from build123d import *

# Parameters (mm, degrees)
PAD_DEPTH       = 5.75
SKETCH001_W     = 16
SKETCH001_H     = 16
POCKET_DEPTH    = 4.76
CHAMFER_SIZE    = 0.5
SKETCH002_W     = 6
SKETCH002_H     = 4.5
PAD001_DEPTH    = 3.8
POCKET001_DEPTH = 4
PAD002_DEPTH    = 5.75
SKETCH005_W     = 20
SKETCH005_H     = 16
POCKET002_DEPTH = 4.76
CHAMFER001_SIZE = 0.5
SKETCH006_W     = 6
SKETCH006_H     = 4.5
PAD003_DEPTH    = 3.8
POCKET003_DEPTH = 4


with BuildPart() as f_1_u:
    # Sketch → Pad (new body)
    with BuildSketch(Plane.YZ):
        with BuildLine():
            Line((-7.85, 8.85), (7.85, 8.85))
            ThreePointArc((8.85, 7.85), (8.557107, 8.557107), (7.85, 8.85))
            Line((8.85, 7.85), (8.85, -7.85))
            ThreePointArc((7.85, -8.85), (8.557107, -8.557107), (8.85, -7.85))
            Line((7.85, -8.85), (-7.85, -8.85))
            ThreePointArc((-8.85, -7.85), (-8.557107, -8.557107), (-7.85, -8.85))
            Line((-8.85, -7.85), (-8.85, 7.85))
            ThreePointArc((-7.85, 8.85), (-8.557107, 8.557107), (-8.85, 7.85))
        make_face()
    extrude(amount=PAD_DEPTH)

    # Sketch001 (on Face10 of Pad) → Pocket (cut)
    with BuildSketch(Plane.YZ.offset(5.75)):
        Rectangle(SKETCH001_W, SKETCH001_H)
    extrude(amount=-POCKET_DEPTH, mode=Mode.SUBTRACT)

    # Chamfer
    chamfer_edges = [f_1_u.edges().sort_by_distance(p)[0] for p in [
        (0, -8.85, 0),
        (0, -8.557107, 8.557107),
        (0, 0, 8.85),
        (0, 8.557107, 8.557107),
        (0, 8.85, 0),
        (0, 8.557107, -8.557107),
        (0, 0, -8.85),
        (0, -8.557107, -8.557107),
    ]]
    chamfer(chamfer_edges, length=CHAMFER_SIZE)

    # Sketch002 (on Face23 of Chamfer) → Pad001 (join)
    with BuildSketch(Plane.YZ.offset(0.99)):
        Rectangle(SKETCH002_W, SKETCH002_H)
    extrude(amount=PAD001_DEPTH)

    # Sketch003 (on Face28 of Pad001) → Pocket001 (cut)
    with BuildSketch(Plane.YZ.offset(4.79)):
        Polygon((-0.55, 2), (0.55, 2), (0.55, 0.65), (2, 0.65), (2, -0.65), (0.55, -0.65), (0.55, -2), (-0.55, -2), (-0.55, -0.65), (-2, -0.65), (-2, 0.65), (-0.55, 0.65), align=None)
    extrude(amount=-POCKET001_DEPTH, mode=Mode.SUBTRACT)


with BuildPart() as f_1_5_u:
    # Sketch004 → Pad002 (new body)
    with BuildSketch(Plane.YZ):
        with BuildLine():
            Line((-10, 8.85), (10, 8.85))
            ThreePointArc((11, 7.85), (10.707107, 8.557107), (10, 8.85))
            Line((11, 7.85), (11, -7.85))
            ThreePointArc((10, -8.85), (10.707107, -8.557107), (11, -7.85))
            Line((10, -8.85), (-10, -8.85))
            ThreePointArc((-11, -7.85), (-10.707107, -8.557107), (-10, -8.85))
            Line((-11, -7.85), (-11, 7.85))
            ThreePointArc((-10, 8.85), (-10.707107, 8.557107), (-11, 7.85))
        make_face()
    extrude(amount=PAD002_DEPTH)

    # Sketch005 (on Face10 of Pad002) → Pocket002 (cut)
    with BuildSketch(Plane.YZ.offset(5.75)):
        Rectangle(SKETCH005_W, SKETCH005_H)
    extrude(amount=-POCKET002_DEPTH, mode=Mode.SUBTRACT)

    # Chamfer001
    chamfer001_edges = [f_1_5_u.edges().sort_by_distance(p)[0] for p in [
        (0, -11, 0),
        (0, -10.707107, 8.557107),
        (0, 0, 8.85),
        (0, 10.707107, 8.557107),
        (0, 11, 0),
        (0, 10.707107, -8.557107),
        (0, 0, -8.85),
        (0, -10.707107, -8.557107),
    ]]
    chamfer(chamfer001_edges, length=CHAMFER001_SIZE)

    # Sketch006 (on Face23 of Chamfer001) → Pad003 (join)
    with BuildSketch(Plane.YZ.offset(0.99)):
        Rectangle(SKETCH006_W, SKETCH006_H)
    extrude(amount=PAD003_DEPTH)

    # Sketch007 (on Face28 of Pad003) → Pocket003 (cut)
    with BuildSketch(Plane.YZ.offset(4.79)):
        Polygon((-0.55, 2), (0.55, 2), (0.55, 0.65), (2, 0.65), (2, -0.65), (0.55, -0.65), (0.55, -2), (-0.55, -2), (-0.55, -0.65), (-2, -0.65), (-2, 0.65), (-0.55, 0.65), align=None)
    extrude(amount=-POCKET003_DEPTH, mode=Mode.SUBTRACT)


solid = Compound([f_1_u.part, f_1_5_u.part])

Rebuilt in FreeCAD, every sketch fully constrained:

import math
import FreeCAD as App
import Part
import Sketcher
from FreeCAD import Vector


def edges_at(feature, points):
    """Names of the edges that pass closest to the given points."""
    edges = feature.Shape.Edges
    near = lambda p: min(range(len(edges)), key=lambda i: edges[i].distToShape(Part.Vertex(*p))[0])
    return sorted({f"Edge{near(p) + 1}" for p in points})


def add_polygon(sketch, points):
    """Adds a closed chain of lines whose ends are joined by coincident constraints."""
    first, n = sketch.GeometryCount, len(points)
    for a, b in zip(points, points[1:] + points[:1]):
        sketch.addGeometry(Part.LineSegment(App.Vector(*a, 0), App.Vector(*b, 0)), False)
    for i in range(n):
        sketch.addConstraint(Sketcher.Constraint("Coincident", first + i, 2, first + (i + 1) % n, 1))

doc = App.newDocument("Part")
body = doc.addObject("PartDesign::Body", "Body")

sketch1 = body.newObject("Sketcher::SketchObject", "Sketch")
sketch1.AttachmentSupport = (doc.getObject("YZ_Plane"), [""])
sketch1.MapMode = "FlatFace"
sketch1.addGeometry(Part.LineSegment(Vector(7.85, 8.85, 0), Vector(-7.85, 8.85, 0)), False)
sketch1.addGeometry(Part.ArcOfCircle(Part.Circle(Vector(-7.850001, 7.850001, 0), Vector(0, 0, 1), 0.999999), math.radians(89.999957), math.radians(180.000043)), False)
sketch1.addGeometry(Part.LineSegment(Vector(-8.85, 7.85, 0), Vector(-8.85, -7.85, 0)), False)
sketch1.addGeometry(Part.ArcOfCircle(Part.Circle(Vector(-7.850001, -7.850001, 0), Vector(0, 0, 1), 0.999999), math.radians(179.999957), math.radians(270.000043)), False)
sketch1.addGeometry(Part.LineSegment(Vector(-7.85, -8.85, 0), Vector(7.85, -8.85, 0)), False)
sketch1.addGeometry(Part.ArcOfCircle(Part.Circle(Vector(7.850001, -7.850001, 0), Vector(0, 0, 1), 0.999999), math.radians(-90.000043), math.radians(0.000043)), False)
sketch1.addGeometry(Part.LineSegment(Vector(8.85, -7.85, 0), Vector(8.85, 7.85, 0)), False)
sketch1.addGeometry(Part.ArcOfCircle(Part.Circle(Vector(7.850001, 7.850001, 0), Vector(0, 0, 1), 0.999999), math.radians(-0.000043), math.radians(90.000043)), False)
sketch1.addConstraint(Sketcher.Constraint("Tangent", 0, 2, 1, 1))
sketch1.addConstraint(Sketcher.Constraint("Tangent", 1, 2, 2, 1))
sketch1.addConstraint(Sketcher.Constraint("Tangent", 2, 2, 3, 1))
sketch1.addConstraint(Sketcher.Constraint("Tangent", 3, 2, 4, 1))
sketch1.addConstraint(Sketcher.Constraint("Tangent", 4, 2, 5, 1))
sketch1.addConstraint(Sketcher.Constraint("Tangent", 5, 2, 6, 1))
sketch1.addConstraint(Sketcher.Constraint("Tangent", 6, 2, 7, 1))
sketch1.addConstraint(Sketcher.Constraint("Tangent", 7, 2, 0, 1))
sketch1.addConstraint(Sketcher.Constraint("Horizontal", 0))
sketch1.addConstraint(Sketcher.Constraint("Vertical", 2))
sketch1.addConstraint(Sketcher.Constraint("Horizontal", 4))
sketch1.addConstraint(Sketcher.Constraint("Vertical", 6))
sketch1.addConstraint(Sketcher.Constraint("Equal", 1, 3))
sketch1.addConstraint(Sketcher.Constraint("Equal", 3, 5))
sketch1.addConstraint(Sketcher.Constraint("Equal", 5, 7))
sketch1.addConstraint(Sketcher.Constraint("Symmetric", 1, 3, 5, 3, -1, 1))
sketch1.addConstraint(Sketcher.Constraint("Equal", 4, 2))
sketch1.addConstraint(Sketcher.Constraint("Radius", 1, 0.999999))
sketch1.addConstraint(Sketcher.Constraint("DistanceX", 0, 2, 0, 1, 15.7))
pad1 = body.newObject("PartDesign::Pad", "Pad")
pad1.Profile = sketch1
pad1.Length = 5.75

sketch2 = body.newObject("Sketcher::SketchObject", "Sketch001")
sketch2.AttachmentSupport = (doc.getObject("YZ_Plane"), [""])
sketch2.MapMode = "FlatFace"
sketch2.AttachmentOffset = App.Placement(Vector(0, 0, 5.75), App.Rotation())
add_polygon(sketch2, [(-8, 8), (-8, -8), (8, -8), (8, 8)])
sketch2.addConstraint(Sketcher.Constraint("Vertical", 0))
sketch2.addConstraint(Sketcher.Constraint("Horizontal", 1))
sketch2.addConstraint(Sketcher.Constraint("Vertical", 2))
sketch2.addConstraint(Sketcher.Constraint("Horizontal", 3))
sketch2.addConstraint(Sketcher.Constraint("Symmetric", 0, 2, 2, 2, -1, 1))
sketch2.addConstraint(Sketcher.Constraint("Equal", 3, 0))
sketch2.addConstraint(Sketcher.Constraint("DistanceX", 1, 1, 1, 2, 16.0))
pocket1 = body.newObject("PartDesign::Pocket", "Pocket")
pocket1.Profile = sketch2
pocket1.Length = 4.76
doc.recompute()

chamfer = body.newObject("PartDesign::Chamfer", "Chamfer")
chamfer.Base = (pocket1, edges_at(pocket1, [
    (0, -8.85, 0),
    (0, -8.557, 8.557),
    (0, 0, 8.85),
    (0, 8.557, 8.557),
    (0, 8.85, 0),
    (0, 8.557, -8.557),
    (0, 0, -8.85),
    (0, -8.557, -8.557),
]))
chamfer.Size = 0.5

sketch3 = body.newObject("Sketcher::SketchObject", "Sketch002")
sketch3.AttachmentSupport = (doc.getObject("YZ_Plane"), [""])
sketch3.MapMode = "FlatFace"
sketch3.AttachmentOffset = App.Placement(Vector(0, 0, 0.99), App.Rotation())
add_polygon(sketch3, [(-3, 2.25), (-3, -2.25), (3, -2.25), (3, 2.25)])
sketch3.addConstraint(Sketcher.Constraint("Vertical", 0))
sketch3.addConstraint(Sketcher.Constraint("Horizontal", 1))
sketch3.addConstraint(Sketcher.Constraint("Vertical", 2))
sketch3.addConstraint(Sketcher.Constraint("Horizontal", 3))
sketch3.addConstraint(Sketcher.Constraint("Symmetric", 0, 2, 2, 2, -1, 1))
sketch3.addConstraint(Sketcher.Constraint("DistanceX", 1, 1, 1, 2, 6.0))
sketch3.addConstraint(Sketcher.Constraint("DistanceY", 0, 2, 0, 1, 4.5))
pad2 = body.newObject("PartDesign::Pad", "Pad001")
pad2.Profile = sketch3
pad2.Length = 3.8

sketch4 = body.newObject("Sketcher::SketchObject", "Sketch003")
sketch4.AttachmentSupport = (doc.getObject("YZ_Plane"), [""])
sketch4.MapMode = "FlatFace"
sketch4.AttachmentOffset = App.Placement(Vector(0, 0, 4.79), App.Rotation())
add_polygon(sketch4, [(0.55, 2), (-0.55, 2), (-0.55, 0.65), (-2, 0.65), (-2, -0.65), (-0.55, -0.65), (-0.55, -2), (0.55, -2), (0.55, -0.65), (2, -0.65), (2, 0.65), (0.55, 0.65)])
sketch4.addConstraint(Sketcher.Constraint("Horizontal", 0))
sketch4.addConstraint(Sketcher.Constraint("Vertical", 1))
sketch4.addConstraint(Sketcher.Constraint("Horizontal", 2))
sketch4.addConstraint(Sketcher.Constraint("Vertical", 3))
sketch4.addConstraint(Sketcher.Constraint("Horizontal", 4))
sketch4.addConstraint(Sketcher.Constraint("Vertical", 5))
sketch4.addConstraint(Sketcher.Constraint("Horizontal", 6))
sketch4.addConstraint(Sketcher.Constraint("Vertical", 7))
sketch4.addConstraint(Sketcher.Constraint("Horizontal", 8))
sketch4.addConstraint(Sketcher.Constraint("Vertical", 9))
sketch4.addConstraint(Sketcher.Constraint("Horizontal", 10))
sketch4.addConstraint(Sketcher.Constraint("Vertical", 11))
sketch4.addConstraint(Sketcher.Constraint("Symmetric", 0, 2, 6, 2, -1, 1))
sketch4.addConstraint(Sketcher.Constraint("Symmetric", 2, 2, 8, 2, -1, 1))
sketch4.addConstraint(Sketcher.Constraint("Symmetric", 4, 2, 10, 2, -1, 1))
sketch4.addConstraint(Sketcher.Constraint("Symmetric", 4, 2, 7, 2, -2))
sketch4.addConstraint(Sketcher.Constraint("DistanceX", 0, 2, 0, 1, 1.1))
sketch4.addConstraint(Sketcher.Constraint("DistanceY", 3, 2, 3, 1, 1.3))
sketch4.addConstraint(Sketcher.Constraint("DistanceY", -1, 1, 0, 2, 2.0))
sketch4.addConstraint(Sketcher.Constraint("DistanceX", 2, 2, -1, 1, 2.0))
pocket2 = body.newObject("PartDesign::Pocket", "Pocket001")
pocket2.Profile = sketch4
pocket2.Length = 4
body2 = doc.addObject("PartDesign::Body", "Body001")

sketch5 = body2.newObject("Sketcher::SketchObject", "Sketch004")
sketch5.AttachmentSupport = (doc.getObject("YZ_Plane001"), [""])
sketch5.MapMode = "FlatFace"
sketch5.addGeometry(Part.LineSegment(Vector(10, 8.85, 0), Vector(-10, 8.85, 0)), False)
sketch5.addGeometry(Part.ArcOfCircle(Part.Circle(Vector(-10.000001, 7.850001, 0), Vector(0, 0, 1), 0.999999), math.radians(89.999957), math.radians(180.000043)), False)
sketch5.addGeometry(Part.LineSegment(Vector(-11, 7.85, 0), Vector(-11, -7.85, 0)), False)
sketch5.addGeometry(Part.ArcOfCircle(Part.Circle(Vector(-10.000001, -7.850001, 0), Vector(0, 0, 1), 0.999999), math.radians(179.999957), math.radians(270.000043)), False)
sketch5.addGeometry(Part.LineSegment(Vector(-10, -8.85, 0), Vector(10, -8.85, 0)), False)
sketch5.addGeometry(Part.ArcOfCircle(Part.Circle(Vector(10.000001, -7.850001, 0), Vector(0, 0, 1), 0.999999), math.radians(-90.000043), math.radians(0.000043)), False)
sketch5.addGeometry(Part.LineSegment(Vector(11, -7.85, 0), Vector(11, 7.85, 0)), False)
sketch5.addGeometry(Part.ArcOfCircle(Part.Circle(Vector(10.000001, 7.850001, 0), Vector(0, 0, 1), 0.999999), math.radians(-0.000043), math.radians(90.000043)), False)
sketch5.addConstraint(Sketcher.Constraint("Tangent", 0, 2, 1, 1))
sketch5.addConstraint(Sketcher.Constraint("Tangent", 1, 2, 2, 1))
sketch5.addConstraint(Sketcher.Constraint("Tangent", 2, 2, 3, 1))
sketch5.addConstraint(Sketcher.Constraint("Tangent", 3, 2, 4, 1))
sketch5.addConstraint(Sketcher.Constraint("Tangent", 4, 2, 5, 1))
sketch5.addConstraint(Sketcher.Constraint("Tangent", 5, 2, 6, 1))
sketch5.addConstraint(Sketcher.Constraint("Tangent", 6, 2, 7, 1))
sketch5.addConstraint(Sketcher.Constraint("Tangent", 7, 2, 0, 1))
sketch5.addConstraint(Sketcher.Constraint("Horizontal", 0))
sketch5.addConstraint(Sketcher.Constraint("Vertical", 2))
sketch5.addConstraint(Sketcher.Constraint("Horizontal", 4))
sketch5.addConstraint(Sketcher.Constraint("Vertical", 6))
sketch5.addConstraint(Sketcher.Constraint("Equal", 1, 3))
sketch5.addConstraint(Sketcher.Constraint("Equal", 3, 5))
sketch5.addConstraint(Sketcher.Constraint("Equal", 5, 7))
sketch5.addConstraint(Sketcher.Constraint("Symmetric", 1, 3, 5, 3, -1, 1))
sketch5.addConstraint(Sketcher.Constraint("Radius", 1, 0.999999))
sketch5.addConstraint(Sketcher.Constraint("DistanceX", 0, 2, 0, 1, 20.0))
sketch5.addConstraint(Sketcher.Constraint("DistanceY", 2, 2, 2, 1, 15.7))
pad3 = body2.newObject("PartDesign::Pad", "Pad002")
pad3.Profile = sketch5
pad3.Length = 5.75

sketch6 = body2.newObject("Sketcher::SketchObject", "Sketch005")
sketch6.AttachmentSupport = (doc.getObject("YZ_Plane001"), [""])
sketch6.MapMode = "FlatFace"
sketch6.AttachmentOffset = App.Placement(Vector(0, 0, 5.75), App.Rotation())
add_polygon(sketch6, [(-10, 8), (-10, -8), (10, -8), (10, 8)])
sketch6.addConstraint(Sketcher.Constraint("Vertical", 0))
sketch6.addConstraint(Sketcher.Constraint("Horizontal", 1))
sketch6.addConstraint(Sketcher.Constraint("Vertical", 2))
sketch6.addConstraint(Sketcher.Constraint("Horizontal", 3))
sketch6.addConstraint(Sketcher.Constraint("Symmetric", 0, 2, 2, 2, -1, 1))
sketch6.addConstraint(Sketcher.Constraint("DistanceX", 1, 1, 1, 2, 20.0))
sketch6.addConstraint(Sketcher.Constraint("DistanceY", 0, 2, 0, 1, 16.0))
pocket3 = body2.newObject("PartDesign::Pocket", "Pocket002")
pocket3.Profile = sketch6
pocket3.Length = 4.76
doc.recompute()

chamfer2 = body2.newObject("PartDesign::Chamfer", "Chamfer001")
chamfer2.Base = (pocket3, edges_at(pocket3, [
    (0, -11, 0),
    (0, -10.707, 8.557),
    (0, 0, 8.85),
    (0, 10.707, 8.557),
    (0, 11, 0),
    (0, 10.707, -8.557),
    (0, 0, -8.85),
    (0, -10.707, -8.557),
]))
chamfer2.Size = 0.5

sketch7 = body2.newObject("Sketcher::SketchObject", "Sketch006")
sketch7.AttachmentSupport = (doc.getObject("YZ_Plane001"), [""])
sketch7.MapMode = "FlatFace"
sketch7.AttachmentOffset = App.Placement(Vector(0, 0, 0.99), App.Rotation())
add_polygon(sketch7, [(-3, 2.25), (-3, -2.25), (3, -2.25), (3, 2.25)])
sketch7.addConstraint(Sketcher.Constraint("Vertical", 0))
sketch7.addConstraint(Sketcher.Constraint("Horizontal", 1))
sketch7.addConstraint(Sketcher.Constraint("Vertical", 2))
sketch7.addConstraint(Sketcher.Constraint("Horizontal", 3))
sketch7.addConstraint(Sketcher.Constraint("Symmetric", 0, 2, 2, 2, -1, 1))
sketch7.addConstraint(Sketcher.Constraint("DistanceX", 1, 1, 1, 2, 6.0))
sketch7.addConstraint(Sketcher.Constraint("DistanceY", 0, 2, 0, 1, 4.5))
pad4 = body2.newObject("PartDesign::Pad", "Pad003")
pad4.Profile = sketch7
pad4.Length = 3.8

sketch8 = body2.newObject("Sketcher::SketchObject", "Sketch007")
sketch8.AttachmentSupport = (doc.getObject("YZ_Plane001"), [""])
sketch8.MapMode = "FlatFace"
sketch8.AttachmentOffset = App.Placement(Vector(0, 0, 4.79), App.Rotation())
add_polygon(sketch8, [(0.55, 2), (-0.55, 2), (-0.55, 0.65), (-2, 0.65), (-2, -0.65), (-0.55, -0.65), (-0.55, -2), (0.55, -2), (0.55, -0.65), (2, -0.65), (2, 0.65), (0.55, 0.65)])
sketch8.addConstraint(Sketcher.Constraint("Horizontal", 0))
sketch8.addConstraint(Sketcher.Constraint("Vertical", 1))
sketch8.addConstraint(Sketcher.Constraint("Horizontal", 2))
sketch8.addConstraint(Sketcher.Constraint("Vertical", 3))
sketch8.addConstraint(Sketcher.Constraint("Horizontal", 4))
sketch8.addConstraint(Sketcher.Constraint("Vertical", 5))
sketch8.addConstraint(Sketcher.Constraint("Horizontal", 6))
sketch8.addConstraint(Sketcher.Constraint("Vertical", 7))
sketch8.addConstraint(Sketcher.Constraint("Horizontal", 8))
sketch8.addConstraint(Sketcher.Constraint("Vertical", 9))
sketch8.addConstraint(Sketcher.Constraint("Horizontal", 10))
sketch8.addConstraint(Sketcher.Constraint("Vertical", 11))
sketch8.addConstraint(Sketcher.Constraint("Symmetric", 0, 2, 6, 2, -1, 1))
sketch8.addConstraint(Sketcher.Constraint("Symmetric", 2, 2, 8, 2, -1, 1))
sketch8.addConstraint(Sketcher.Constraint("Symmetric", 4, 2, 10, 2, -1, 1))
sketch8.addConstraint(Sketcher.Constraint("Symmetric", 4, 2, 7, 2, -2))
sketch8.addConstraint(Sketcher.Constraint("DistanceX", 0, 2, 0, 1, 1.1))
sketch8.addConstraint(Sketcher.Constraint("DistanceY", 3, 2, 3, 1, 1.3))
sketch8.addConstraint(Sketcher.Constraint("DistanceY", -1, 1, 0, 2, 2.0))
sketch8.addConstraint(Sketcher.Constraint("DistanceX", 2, 2, -1, 1, 2.0))
pocket4 = body2.newObject("PartDesign::Pocket", "Pocket003")
pocket4.Profile = sketch8
pocket4.Length = 4

doc.recompute()
